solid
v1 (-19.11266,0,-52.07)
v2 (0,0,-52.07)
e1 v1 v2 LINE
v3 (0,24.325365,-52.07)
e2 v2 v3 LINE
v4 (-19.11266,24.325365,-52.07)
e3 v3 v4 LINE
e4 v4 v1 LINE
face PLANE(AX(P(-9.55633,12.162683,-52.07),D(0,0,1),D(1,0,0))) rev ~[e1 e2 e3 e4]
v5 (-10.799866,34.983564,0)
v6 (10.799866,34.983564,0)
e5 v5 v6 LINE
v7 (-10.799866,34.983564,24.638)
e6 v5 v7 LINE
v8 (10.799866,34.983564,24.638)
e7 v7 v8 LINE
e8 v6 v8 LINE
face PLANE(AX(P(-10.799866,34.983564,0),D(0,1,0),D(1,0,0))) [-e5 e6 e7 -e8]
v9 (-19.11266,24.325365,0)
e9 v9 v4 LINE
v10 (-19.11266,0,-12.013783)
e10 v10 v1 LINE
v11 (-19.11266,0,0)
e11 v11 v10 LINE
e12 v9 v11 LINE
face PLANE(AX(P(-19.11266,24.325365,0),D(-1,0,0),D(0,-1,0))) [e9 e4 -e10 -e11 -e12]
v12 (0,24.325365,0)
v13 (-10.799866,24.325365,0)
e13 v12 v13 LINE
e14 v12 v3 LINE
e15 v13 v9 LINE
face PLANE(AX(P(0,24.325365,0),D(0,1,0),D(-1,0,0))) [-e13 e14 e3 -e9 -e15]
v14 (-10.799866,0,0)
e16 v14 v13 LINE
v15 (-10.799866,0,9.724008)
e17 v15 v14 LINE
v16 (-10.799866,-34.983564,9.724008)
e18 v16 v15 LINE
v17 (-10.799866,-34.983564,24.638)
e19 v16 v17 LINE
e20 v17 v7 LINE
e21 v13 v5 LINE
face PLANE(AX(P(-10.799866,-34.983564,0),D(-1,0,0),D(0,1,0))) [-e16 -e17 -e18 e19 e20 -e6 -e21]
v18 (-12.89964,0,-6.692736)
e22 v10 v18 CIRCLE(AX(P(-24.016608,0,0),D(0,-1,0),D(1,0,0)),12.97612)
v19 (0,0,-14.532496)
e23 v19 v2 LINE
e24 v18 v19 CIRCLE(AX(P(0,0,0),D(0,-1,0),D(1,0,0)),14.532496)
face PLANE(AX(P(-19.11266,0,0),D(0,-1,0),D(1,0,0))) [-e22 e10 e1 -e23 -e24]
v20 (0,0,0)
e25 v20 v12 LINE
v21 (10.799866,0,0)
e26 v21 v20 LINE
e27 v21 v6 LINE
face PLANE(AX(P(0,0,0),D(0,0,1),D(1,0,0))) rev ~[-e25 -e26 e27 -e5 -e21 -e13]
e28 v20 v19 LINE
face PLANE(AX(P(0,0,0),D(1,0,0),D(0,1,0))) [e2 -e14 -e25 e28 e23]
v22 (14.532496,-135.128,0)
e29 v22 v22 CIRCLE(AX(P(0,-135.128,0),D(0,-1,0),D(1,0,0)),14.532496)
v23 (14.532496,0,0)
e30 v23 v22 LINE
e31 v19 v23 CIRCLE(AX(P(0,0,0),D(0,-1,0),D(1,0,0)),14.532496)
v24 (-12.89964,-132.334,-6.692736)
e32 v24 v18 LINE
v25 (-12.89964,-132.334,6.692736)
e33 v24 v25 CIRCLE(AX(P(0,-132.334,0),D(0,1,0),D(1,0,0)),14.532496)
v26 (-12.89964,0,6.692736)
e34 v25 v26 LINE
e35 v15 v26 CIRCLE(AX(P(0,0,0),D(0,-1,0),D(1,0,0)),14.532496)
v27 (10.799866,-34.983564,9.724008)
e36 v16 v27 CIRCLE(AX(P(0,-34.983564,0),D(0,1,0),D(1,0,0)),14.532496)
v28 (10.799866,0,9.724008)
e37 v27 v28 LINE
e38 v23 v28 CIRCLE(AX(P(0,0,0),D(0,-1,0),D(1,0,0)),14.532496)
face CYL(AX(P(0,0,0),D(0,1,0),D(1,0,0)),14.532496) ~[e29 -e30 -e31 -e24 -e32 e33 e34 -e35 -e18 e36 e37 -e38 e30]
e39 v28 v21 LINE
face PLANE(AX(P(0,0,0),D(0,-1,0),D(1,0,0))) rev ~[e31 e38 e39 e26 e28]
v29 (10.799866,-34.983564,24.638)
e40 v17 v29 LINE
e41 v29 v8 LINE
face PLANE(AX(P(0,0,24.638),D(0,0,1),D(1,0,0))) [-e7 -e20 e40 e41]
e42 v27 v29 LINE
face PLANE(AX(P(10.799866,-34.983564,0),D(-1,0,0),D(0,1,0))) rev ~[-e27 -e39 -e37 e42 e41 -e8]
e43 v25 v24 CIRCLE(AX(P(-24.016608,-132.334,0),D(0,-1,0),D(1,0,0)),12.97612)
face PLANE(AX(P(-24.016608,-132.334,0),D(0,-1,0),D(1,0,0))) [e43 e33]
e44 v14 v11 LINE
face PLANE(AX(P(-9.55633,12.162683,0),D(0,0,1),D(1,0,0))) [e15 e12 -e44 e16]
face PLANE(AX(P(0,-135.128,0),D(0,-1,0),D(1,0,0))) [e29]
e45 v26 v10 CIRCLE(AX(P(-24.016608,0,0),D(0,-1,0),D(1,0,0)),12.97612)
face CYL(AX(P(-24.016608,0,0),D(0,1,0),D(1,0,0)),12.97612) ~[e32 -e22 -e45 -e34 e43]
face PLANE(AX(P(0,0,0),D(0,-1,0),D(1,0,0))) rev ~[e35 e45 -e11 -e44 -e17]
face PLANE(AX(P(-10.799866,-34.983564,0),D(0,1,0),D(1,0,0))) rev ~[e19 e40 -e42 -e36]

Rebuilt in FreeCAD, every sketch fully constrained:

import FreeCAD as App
import Part
import Sketcher
from FreeCAD import Vector
Q = App.Units.Quantity


def add_polygon(sketch, points):
    """Adds a closed chain of lines whose ends are joined by coincident constraints."""
    first, n = sketch.GeometryCount, len(points)
    for a, b in zip(points, points[1:] + points[:1]):
        sketch.addGeometry(Part.LineSegment(App.Vector(*a, 0), App.Vector(*b, 0)), False)
    for i in range(n):
        sketch.addConstraint(Sketcher.Constraint("Coincident", first + i, 2, first + (i + 1) % n, 1))

doc = App.newDocument("Part")
body = doc.addObject("PartDesign::Body", "Body")

# Sketch on XZ plane
sketch1 = body.newObject("Sketcher::SketchObject", "Sketch")
sketch1.AttachmentSupport = (doc.getObject("XZ_Plane"), [""])
sketch1.MapMode = "FlatFace"
sketch1.addGeometry(Part.Circle(Vector(0, 0, 0), Vector(0, 0, 1), 15), False)
sketch1.addConstraint(Sketcher.Constraint("Coincident", 0, 3, -1, 1))
sketch1.addConstraint(Sketcher.Constraint("Diameter", 0, 29.064992))
pad1 = body.newObject("PartDesign::Pad", "Pad")
pad1.Profile = sketch1
pad1.Length = Q("5.32 in")

# Sketch on XY plane
sketch2 = body.newObject("Sketcher::SketchObject", "Sketch001")
sketch2.AttachmentSupport = (doc.getObject("XY_Plane"), [""])
sketch2.MapMode = "FlatFace"
add_polygon(sketch2, [(-11, 35), (-11, -35), (11, -35), (11, 35)])  # lines 0-3
sketch2.addConstraint(Sketcher.Constraint("Vertical", 0))
sketch2.addConstraint(Sketcher.Constraint("Horizontal", 1))
sketch2.addConstraint(Sketcher.Constraint("Vertical", 2))
sketch2.addConstraint(Sketcher.Constraint("Horizontal", 3))
sketch2.addConstraint(Sketcher.Constraint("Symmetric", 0, 2, 2, 2, -1, 1))
sketch2.addConstraint(Sketcher.Constraint("DistanceX", 1, 1, 1, 2, 21.599732))
sketch2.addConstraint(Sketcher.Constraint("DistanceY", 0, 2, 0, 1, 69.967128))
pad2 = body.newObject("PartDesign::Pad", "Pad001")
pad2.Profile = sketch2
pad2.Length = Q("0.97 in")

# Sketch on XY plane
sketch3 = body.newObject("Sketcher::SketchObject", "Sketch002")
sketch3.AttachmentSupport = (doc.getObject("XY_Plane"), [""])
sketch3.MapMode = "FlatFace"
add_polygon(sketch3, [(-19, 0), (0, 0), (0, 24), (-19, 24)])  # lines 0-3
sketch3.addConstraint(Sketcher.Constraint("Horizontal", 0))
sketch3.addConstraint(Sketcher.Constraint("Vertical", 1))
sketch3.addConstraint(Sketcher.Constraint("Horizontal", 2))
sketch3.addConstraint(Sketcher.Constraint("Vertical", 3))
sketch3.addConstraint(Sketcher.Constraint("Coincident", 0, 2, -1, 1))
sketch3.addConstraint(Sketcher.Constraint("DistanceX", 0, 1, 0, 2, 19.11266))
sketch3.addConstraint(Sketcher.Constraint("DistanceY", 1, 1, 1, 2, 24.325365))
pad3 = body.newObject("PartDesign::Pad", "Pad002")
pad3.Profile = sketch3
pad3.Length = Q("2.05 in")
pad3.Reversed = True

# Sketch on XZ plane
sketch4 = body.newObject("Sketcher::SketchObject", "Sketch003")
sketch4.AttachmentSupport = (doc.getObject("XZ_Plane"), [""])
sketch4.MapMode = "FlatFace"
sketch4.addGeometry(Part.Circle(Vector(-24, 0, 0), Vector(0, 0, 1), 13), False)
sketch4.addConstraint(Sketcher.Constraint("PointOnObject", 0, 3, -1))
sketch4.addConstraint(Sketcher.Constraint("Diameter", 0, 25.95224))
sketch4.addConstraint(Sketcher.Constraint("DistanceX", 0, 3, -1, 1, 24.016608))
pad4 = body.newObject("PartDesign::Pad", "Pad003")
pad4.Profile = sketch4
pad4.Length = Q("5.21 in")

doc.recompute()
